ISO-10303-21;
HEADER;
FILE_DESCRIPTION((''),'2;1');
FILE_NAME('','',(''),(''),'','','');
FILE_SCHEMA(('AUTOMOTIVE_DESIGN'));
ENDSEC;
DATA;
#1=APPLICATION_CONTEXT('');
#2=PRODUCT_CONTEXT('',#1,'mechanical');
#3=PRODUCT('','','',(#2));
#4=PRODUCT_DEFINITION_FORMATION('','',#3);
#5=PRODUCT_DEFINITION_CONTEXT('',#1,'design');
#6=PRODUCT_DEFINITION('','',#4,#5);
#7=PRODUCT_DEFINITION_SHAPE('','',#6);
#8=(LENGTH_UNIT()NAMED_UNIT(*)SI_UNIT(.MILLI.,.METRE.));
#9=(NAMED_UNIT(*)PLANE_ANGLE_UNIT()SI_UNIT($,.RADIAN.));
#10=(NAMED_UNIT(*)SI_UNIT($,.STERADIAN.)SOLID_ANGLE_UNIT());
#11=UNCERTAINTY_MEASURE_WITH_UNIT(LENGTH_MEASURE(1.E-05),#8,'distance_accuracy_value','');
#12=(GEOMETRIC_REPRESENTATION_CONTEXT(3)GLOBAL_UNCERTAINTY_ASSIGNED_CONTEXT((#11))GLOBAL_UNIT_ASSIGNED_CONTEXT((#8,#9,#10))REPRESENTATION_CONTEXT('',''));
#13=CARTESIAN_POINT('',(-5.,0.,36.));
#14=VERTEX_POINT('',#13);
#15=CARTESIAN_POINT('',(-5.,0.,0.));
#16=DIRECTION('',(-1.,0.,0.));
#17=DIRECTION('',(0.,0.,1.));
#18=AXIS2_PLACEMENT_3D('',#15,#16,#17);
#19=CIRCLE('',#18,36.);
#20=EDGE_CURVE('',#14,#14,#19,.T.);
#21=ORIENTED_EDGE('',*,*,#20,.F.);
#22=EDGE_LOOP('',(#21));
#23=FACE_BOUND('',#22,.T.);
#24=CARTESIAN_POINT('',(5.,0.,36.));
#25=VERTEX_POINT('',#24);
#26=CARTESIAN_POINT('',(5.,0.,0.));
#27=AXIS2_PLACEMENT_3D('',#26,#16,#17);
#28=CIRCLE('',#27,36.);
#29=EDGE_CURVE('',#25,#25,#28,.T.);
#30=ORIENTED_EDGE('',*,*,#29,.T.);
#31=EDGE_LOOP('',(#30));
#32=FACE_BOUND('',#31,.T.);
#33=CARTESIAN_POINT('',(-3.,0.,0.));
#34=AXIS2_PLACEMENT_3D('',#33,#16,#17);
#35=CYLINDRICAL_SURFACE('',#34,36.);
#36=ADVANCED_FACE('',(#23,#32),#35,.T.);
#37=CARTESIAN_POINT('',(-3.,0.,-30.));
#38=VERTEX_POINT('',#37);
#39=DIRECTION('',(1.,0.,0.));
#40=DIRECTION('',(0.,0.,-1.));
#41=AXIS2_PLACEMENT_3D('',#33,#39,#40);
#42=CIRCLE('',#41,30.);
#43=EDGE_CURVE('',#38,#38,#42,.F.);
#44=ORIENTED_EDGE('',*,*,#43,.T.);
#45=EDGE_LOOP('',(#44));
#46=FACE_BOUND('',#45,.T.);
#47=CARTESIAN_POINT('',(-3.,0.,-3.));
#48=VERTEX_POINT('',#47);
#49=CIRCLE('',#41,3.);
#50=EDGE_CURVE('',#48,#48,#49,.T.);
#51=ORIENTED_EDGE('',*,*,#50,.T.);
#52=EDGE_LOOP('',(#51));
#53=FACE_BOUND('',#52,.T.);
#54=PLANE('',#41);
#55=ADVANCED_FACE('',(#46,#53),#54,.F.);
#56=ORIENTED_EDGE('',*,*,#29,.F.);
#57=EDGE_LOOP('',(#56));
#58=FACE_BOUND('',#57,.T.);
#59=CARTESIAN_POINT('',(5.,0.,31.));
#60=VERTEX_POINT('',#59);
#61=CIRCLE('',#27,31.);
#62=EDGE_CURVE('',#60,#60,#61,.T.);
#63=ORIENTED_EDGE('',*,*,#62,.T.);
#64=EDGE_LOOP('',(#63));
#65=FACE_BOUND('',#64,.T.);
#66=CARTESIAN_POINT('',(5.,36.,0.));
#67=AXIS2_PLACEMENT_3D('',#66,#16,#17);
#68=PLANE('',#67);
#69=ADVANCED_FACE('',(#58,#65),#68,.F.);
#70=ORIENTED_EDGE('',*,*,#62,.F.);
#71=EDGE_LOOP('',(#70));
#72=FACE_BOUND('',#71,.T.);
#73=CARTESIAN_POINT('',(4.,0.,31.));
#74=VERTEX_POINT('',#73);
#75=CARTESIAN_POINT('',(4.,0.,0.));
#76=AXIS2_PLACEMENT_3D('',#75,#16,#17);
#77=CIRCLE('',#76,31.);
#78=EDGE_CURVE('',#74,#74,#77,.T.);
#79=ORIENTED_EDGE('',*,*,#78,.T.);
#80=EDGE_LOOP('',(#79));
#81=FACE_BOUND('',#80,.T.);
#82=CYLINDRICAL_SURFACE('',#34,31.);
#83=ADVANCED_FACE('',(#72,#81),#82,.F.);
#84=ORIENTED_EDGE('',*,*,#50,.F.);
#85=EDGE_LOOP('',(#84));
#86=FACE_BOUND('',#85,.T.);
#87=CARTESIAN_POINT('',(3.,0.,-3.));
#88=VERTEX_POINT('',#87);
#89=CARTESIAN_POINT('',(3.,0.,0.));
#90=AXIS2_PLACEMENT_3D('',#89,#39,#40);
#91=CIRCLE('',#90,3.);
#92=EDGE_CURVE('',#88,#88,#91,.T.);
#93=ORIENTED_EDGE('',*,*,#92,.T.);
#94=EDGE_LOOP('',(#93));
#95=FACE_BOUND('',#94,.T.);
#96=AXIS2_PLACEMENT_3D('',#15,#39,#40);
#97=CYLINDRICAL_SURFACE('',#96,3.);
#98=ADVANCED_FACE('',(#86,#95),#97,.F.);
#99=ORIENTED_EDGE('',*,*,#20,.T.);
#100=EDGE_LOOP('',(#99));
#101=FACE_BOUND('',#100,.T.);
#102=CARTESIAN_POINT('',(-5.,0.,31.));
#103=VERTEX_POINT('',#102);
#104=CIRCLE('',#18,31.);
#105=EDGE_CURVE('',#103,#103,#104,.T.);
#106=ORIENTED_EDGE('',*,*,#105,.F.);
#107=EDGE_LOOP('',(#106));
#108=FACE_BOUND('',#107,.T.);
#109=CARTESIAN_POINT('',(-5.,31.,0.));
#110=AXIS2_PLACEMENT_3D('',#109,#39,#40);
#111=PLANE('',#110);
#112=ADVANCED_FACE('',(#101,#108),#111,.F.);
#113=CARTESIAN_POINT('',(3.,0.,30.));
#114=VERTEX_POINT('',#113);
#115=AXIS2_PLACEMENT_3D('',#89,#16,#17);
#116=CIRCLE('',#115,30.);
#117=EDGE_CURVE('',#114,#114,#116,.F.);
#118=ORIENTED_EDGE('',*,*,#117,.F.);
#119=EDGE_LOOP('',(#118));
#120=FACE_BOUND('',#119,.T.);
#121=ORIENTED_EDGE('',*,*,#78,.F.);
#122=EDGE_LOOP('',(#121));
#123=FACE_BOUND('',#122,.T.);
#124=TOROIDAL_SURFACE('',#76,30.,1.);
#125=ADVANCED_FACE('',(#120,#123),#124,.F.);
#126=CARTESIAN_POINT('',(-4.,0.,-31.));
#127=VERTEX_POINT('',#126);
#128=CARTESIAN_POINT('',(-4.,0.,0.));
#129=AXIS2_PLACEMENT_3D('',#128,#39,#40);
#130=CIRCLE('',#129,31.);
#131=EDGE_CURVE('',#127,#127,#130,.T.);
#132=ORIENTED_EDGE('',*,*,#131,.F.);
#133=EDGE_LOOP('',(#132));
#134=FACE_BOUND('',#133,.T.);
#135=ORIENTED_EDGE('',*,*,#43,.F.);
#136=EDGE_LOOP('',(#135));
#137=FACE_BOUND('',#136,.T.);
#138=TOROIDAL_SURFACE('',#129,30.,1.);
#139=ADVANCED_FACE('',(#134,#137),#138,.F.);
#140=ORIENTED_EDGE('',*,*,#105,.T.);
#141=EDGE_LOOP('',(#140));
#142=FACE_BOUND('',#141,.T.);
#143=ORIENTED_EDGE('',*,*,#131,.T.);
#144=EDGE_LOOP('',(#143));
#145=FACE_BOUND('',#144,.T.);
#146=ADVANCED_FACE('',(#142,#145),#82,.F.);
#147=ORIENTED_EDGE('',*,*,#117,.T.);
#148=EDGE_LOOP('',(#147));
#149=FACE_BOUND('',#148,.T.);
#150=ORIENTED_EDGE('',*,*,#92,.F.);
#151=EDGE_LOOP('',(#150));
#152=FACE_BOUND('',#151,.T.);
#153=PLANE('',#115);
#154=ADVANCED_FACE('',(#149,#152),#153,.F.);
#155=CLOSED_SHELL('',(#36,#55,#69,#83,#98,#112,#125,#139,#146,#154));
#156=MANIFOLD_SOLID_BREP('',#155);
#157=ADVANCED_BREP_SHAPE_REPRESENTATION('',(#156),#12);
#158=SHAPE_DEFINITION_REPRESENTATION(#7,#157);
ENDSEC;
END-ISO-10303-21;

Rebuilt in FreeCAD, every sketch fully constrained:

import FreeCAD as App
import Part
import Sketcher
Q = App.Units.Quantity


def edges_at(feature, points):
    """Names of the edges that pass closest to the given points."""
    edges = feature.Shape.Edges
    near = lambda p: min(range(len(edges)), key=lambda i: edges[i].distToShape(Part.Vertex(*p))[0])
    return sorted({f"Edge{near(p) + 1}" for p in points})

doc = App.newDocument("Part")
body = doc.addObject("PartDesign::Body", "Body")

sketch1 = doc.addObject("Sketcher::SketchObject", "Sketch")
body.addObject(sketch1)
sketch1.AttachmentSupport = (doc.XY_Plane, [""])
sketch1.MapMode = "FlatFace"
sketch1.addGeometry([
    Part.LineSegment(App.Vector(-5, 31, 0), App.Vector(-3, 31, 0)),
    Part.LineSegment(App.Vector(-3, 31, 0), App.Vector(-3, 0, 0)),
    Part.LineSegment(App.Vector(-3, 0, 0), App.Vector(3, 0, 0)),
    Part.LineSegment(App.Vector(3, 0, 0), App.Vector(3, 31, 0)),
    Part.LineSegment(App.Vector(3, 31, 0), App.Vector(5, 31, 0)),
    Part.LineSegment(App.Vector(5, 31, 0), App.Vector(5, 36, 0)),
    Part.LineSegment(App.Vector(5, 36, 0), App.Vector(-5, 36, 0)),
    Part.LineSegment(App.Vector(-5, 36, 0), App.Vector(-5, 31, 0)),
], False)
sketch1.addConstraint([
    Sketcher.Constraint("Coincident", 0, 2, 1, 1),
    Sketcher.Constraint("Coincident", 1, 2, 2, 1),
    Sketcher.Constraint("Coincident", 2, 2, 3, 1),
    Sketcher.Constraint("Coincident", 3, 2, 4, 1),
    Sketcher.Constraint("Coincident", 4, 2, 5, 1),
    Sketcher.Constraint("Coincident", 5, 2, 6, 1),
    Sketcher.Constraint("Coincident", 6, 2, 7, 1),
    Sketcher.Constraint("Coincident", 7, 2, 0, 1),
    Sketcher.Constraint("Horizontal", 0),
    Sketcher.Constraint("Vertical", 1),
    Sketcher.Constraint("Horizontal", 2),
    Sketcher.Constraint("Vertical", 3),
    Sketcher.Constraint("Horizontal", 4),
    Sketcher.Constraint("Vertical", 5),
    Sketcher.Constraint("Horizontal", 6),
    Sketcher.Constraint("Vertical", 7),
    Sketcher.Constraint("Symmetric", 1, 2, 2, 2, -1, 1),
    Sketcher.Constraint("Symmetric", 4, 2, 7, 2, -2),
    Sketcher.Constraint("DistanceX", 0, 1, 0, 2, Q("2 mm")),
    Sketcher.Constraint("DistanceX", 2, 1, 2, 2, Q("6 mm")),
    Sketcher.Constraint("DistanceY", 1, 2, 1, 1, Q("31 mm")),
    Sketcher.Constraint("DistanceY", 5, 1, 5, 2, Q("5 mm")),
])
revolution = doc.addObject("PartDesign::Revolution", "Revolution")
body.addObject(revolution)
revolution.Profile = sketch1
revolution.ReferenceAxis = (sketch1, ["H_Axis"])
revolution.Angle = 360

sketch2 = doc.addObject("Sketcher::SketchObject", "Sketch001")
body.addObject(sketch2)
sketch2.AttachmentSupport = (doc.YZ_Plane, [""])
sketch2.MapMode = "FlatFace"
sketch2.AttachmentOffset = App.Placement(App.Vector(0, 0, 3), App.Rotation())
sketch2.addGeometry(Part.Circle(App.Vector(0, 0, 0), App.Vector(0, 0, 1), 3), False)
sketch2.addConstraint([
    Sketcher.Constraint("Coincident", 0, 3, -1, 1),
    Sketcher.Constraint("Diameter", 0, Q("6 mm")),
])
pocket1 = doc.addObject("PartDesign::Pocket", "Pocket")
body.addObject(pocket1)
pocket1.Profile = sketch2
pocket1.Type = "ThroughAll"
doc.recompute()

fillet = doc.addObject("PartDesign::Fillet", "Fillet")
body.addObject(fillet)
fillet.Base = (pocket1, edges_at(pocket1, [(-3, -31, 0), (3, -31, 0)]))
fillet.Radius = 1

doc.recompute()
